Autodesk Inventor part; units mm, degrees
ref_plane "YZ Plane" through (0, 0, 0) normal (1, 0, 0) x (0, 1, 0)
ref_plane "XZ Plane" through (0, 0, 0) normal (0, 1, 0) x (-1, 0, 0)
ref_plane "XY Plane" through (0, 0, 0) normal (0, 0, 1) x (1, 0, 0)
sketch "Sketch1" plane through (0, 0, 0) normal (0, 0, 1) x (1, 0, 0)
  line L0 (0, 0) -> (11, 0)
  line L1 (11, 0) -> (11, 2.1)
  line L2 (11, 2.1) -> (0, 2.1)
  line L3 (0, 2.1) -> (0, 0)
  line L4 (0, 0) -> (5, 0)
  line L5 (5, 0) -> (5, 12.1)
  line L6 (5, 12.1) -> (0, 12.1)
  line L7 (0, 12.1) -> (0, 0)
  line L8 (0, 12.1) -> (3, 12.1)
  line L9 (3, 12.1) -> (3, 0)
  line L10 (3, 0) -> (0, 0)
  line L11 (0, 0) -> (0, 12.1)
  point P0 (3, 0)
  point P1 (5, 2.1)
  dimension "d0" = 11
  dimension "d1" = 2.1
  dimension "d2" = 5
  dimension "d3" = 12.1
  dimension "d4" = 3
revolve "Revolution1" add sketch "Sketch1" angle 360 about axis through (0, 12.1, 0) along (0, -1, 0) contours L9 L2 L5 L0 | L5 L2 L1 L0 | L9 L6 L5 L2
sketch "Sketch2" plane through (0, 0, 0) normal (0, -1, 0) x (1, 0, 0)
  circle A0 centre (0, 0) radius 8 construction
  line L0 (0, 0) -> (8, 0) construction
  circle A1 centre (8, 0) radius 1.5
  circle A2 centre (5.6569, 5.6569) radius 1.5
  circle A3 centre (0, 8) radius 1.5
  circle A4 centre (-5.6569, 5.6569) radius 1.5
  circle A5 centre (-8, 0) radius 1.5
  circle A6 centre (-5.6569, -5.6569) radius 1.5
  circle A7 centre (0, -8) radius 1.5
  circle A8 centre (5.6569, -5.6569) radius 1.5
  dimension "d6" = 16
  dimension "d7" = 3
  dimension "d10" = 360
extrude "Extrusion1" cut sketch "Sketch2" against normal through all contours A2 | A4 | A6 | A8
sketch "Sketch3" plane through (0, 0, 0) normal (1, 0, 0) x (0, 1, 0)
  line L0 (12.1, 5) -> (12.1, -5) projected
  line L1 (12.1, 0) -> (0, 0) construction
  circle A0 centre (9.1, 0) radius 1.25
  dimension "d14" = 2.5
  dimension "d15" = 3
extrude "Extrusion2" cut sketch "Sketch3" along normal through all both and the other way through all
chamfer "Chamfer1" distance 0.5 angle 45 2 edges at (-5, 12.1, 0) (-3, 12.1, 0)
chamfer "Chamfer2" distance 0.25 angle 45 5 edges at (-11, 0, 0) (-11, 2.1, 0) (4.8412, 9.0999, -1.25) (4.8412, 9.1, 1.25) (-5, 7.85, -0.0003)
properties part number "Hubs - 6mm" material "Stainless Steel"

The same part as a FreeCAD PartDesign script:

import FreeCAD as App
import Part
import Sketcher
from FreeCAD import Vector


def edges_at(feature, points):
    """Names of the edges that pass closest to the given points."""
    edges = feature.Shape.Edges
    near = lambda p: min(range(len(edges)), key=lambda i: edges[i].distToShape(Part.Vertex(*p))[0])
    return sorted({f"Edge{near(p) + 1}" for p in points})

doc = App.newDocument("Part")
body = doc.addObject("PartDesign::Body", "Body")

sketch1 = body.newObject("Sketcher::SketchObject", "Sketch")
sketch1.AttachmentSupport = (doc.getObject("XY_Plane"), [""])
sketch1.MapMode = "FlatFace"
sketch1.addGeometry(Part.LineSegment(Vector(3, 0, 0), Vector(11, 0, 0)), False)
sketch1.addGeometry(Part.LineSegment(Vector(11, 0, 0), Vector(11, 2.1, 0)), False)
sketch1.addGeometry(Part.LineSegment(Vector(11, 2.1, 0), Vector(5, 2.1, 0)), False)
sketch1.addGeometry(Part.LineSegment(Vector(5, 2.1, 0), Vector(5, 12.1, 0)), False)
sketch1.addGeometry(Part.LineSegment(Vector(5, 12.1, 0), Vector(3, 12.1, 0)), False)
sketch1.addGeometry(Part.LineSegment(Vector(3, 12.1, 0), Vector(3, 0, 0)), False)
sketch1.addConstraint(Sketcher.Constraint("Coincident", 0, 2, 1, 1))
sketch1.addConstraint(Sketcher.Constraint("Coincident", 1, 2, 2, 1))
sketch1.addConstraint(Sketcher.Constraint("Coincident", 2, 2, 3, 1))
sketch1.addConstraint(Sketcher.Constraint("Coincident", 3, 2, 4, 1))
sketch1.addConstraint(Sketcher.Constraint("Coincident", 4, 2, 5, 1))
sketch1.addConstraint(Sketcher.Constraint("Coincident", 5, 2, 0, 1))
sketch1.addConstraint(Sketcher.Constraint("Horizontal", 0))
sketch1.addConstraint(Sketcher.Constraint("Vertical", 1))
sketch1.addConstraint(Sketcher.Constraint("Horizontal", 2))
sketch1.addConstraint(Sketcher.Constraint("Vertical", 3))
sketch1.addConstraint(Sketcher.Constraint("Horizontal", 4))
sketch1.addConstraint(Sketcher.Constraint("Vertical", 5))
sketch1.addConstraint(Sketcher.Constraint("PointOnObject", 0, 2, -1))
sketch1.addConstraint(Sketcher.Constraint("DistanceY", 1, 1, 1, 2, 2.1))
sketch1.addConstraint(Sketcher.Constraint("DistanceY", 5, 2, 5, 1, 12.1))
sketch1.addConstraint(Sketcher.Constraint("DistanceX", -1, 1, 0, 2, 11.0))
sketch1.addConstraint(Sketcher.Constraint("DistanceX", -1, 1, 2, 2, 5.0))
sketch1.addConstraint(Sketcher.Constraint("DistanceX", -1, 1, 4, 2, 3.0))
revolution = body.newObject("PartDesign::Revolution", "Revolution")
revolution.Profile = sketch1
revolution.ReferenceAxis = (sketch1, ["V_Axis"])
revolution.Angle = 360

sketch2 = body.newObject("Sketcher::SketchObject", "Sketch001")
sketch2.AttachmentSupport = (doc.getObject("XZ_Plane"), [""])
sketch2.MapMode = "FlatFace"
sketch2.addGeometry(Part.Circle(Vector(5.7, 5.7, 0), Vector(0, 0, 1), 1.5), False)
sketch2.addGeometry(Part.Circle(Vector(-5.7, 5.7, 0), Vector(0, 0, 1), 1.5), False)
sketch2.addGeometry(Part.Circle(Vector(-5.7, -5.7, 0), Vector(0, 0, 1), 1.5), False)
sketch2.addGeometry(Part.Circle(Vector(5.7, -5.7, 0), Vector(0, 0, 1), 1.5), False)
sketch2.addConstraint(Sketcher.Constraint("Equal", 0, 1))
sketch2.addConstraint(Sketcher.Constraint("Equal", 1, 2))
sketch2.addConstraint(Sketcher.Constraint("Equal", 2, 3))
sketch2.addConstraint(Sketcher.Constraint("Symmetric", 0, 3, 2, 3, -1, 1))
sketch2.addConstraint(Sketcher.Constraint("Symmetric", 1, 3, 3, 3, -1, 1))
sketch2.addConstraint(Sketcher.Constraint("Symmetric", 0, 3, 1, 3, -2))
sketch2.addConstraint(Sketcher.Constraint("Diameter", 0, 3.0))
sketch2.addConstraint(Sketcher.Constraint("DistanceX", -1, 1, 0, 3, 5.657))
sketch2.addConstraint(Sketcher.Constraint("DistanceY", -1, 1, 0, 3, 5.657))
pocket1 = body.newObject("PartDesign::Pocket", "Pocket")
pocket1.Profile = sketch2
pocket1.Type = "ThroughAll"

sketch3 = body.newObject("Sketcher::SketchObject", "Sketch002")
sketch3.AttachmentSupport = (doc.getObject("YZ_Plane"), [""])
sketch3.MapMode = "FlatFace"
sketch3.addGeometry(Part.Circle(Vector(9.1, 0, 0), Vector(0, 0, 1), 1.2), False)
sketch3.addConstraint(Sketcher.Constraint("PointOnObject", 0, 3, -1))
sketch3.addConstraint(Sketcher.Constraint("Diameter", 0, 2.5))
sketch3.addConstraint(Sketcher.Constraint("DistanceX", -1, 1, 0, 3, 9.1))
pocket2 = body.newObject("PartDesign::Pocket", "Pocket001")
pocket2.Profile = sketch3
pocket2.Type = "ThroughAll"
pocket2.Midplane = True
doc.recompute()

chamfer = body.newObject("PartDesign::Chamfer", "Chamfer")
chamfer.Base = (pocket2, edges_at(pocket2, [(-5, 12.1, 0), (-3, 12.1, 0)]))
chamfer.Size = 0.5
doc.recompute()

chamfer2 = body.newObject("PartDesign::Chamfer", "Chamfer001")
chamfer2.Base = (chamfer, edges_at(chamfer, [
    (-11, 0, 0),
    (-11, 2.1, 0),
    (4.841, 9.1, -1.25),
    (4.841, 9.1, 1.25),
    (-5, 7.85, 0),
]))
chamfer2.Size = 0.25

doc.recompute()
